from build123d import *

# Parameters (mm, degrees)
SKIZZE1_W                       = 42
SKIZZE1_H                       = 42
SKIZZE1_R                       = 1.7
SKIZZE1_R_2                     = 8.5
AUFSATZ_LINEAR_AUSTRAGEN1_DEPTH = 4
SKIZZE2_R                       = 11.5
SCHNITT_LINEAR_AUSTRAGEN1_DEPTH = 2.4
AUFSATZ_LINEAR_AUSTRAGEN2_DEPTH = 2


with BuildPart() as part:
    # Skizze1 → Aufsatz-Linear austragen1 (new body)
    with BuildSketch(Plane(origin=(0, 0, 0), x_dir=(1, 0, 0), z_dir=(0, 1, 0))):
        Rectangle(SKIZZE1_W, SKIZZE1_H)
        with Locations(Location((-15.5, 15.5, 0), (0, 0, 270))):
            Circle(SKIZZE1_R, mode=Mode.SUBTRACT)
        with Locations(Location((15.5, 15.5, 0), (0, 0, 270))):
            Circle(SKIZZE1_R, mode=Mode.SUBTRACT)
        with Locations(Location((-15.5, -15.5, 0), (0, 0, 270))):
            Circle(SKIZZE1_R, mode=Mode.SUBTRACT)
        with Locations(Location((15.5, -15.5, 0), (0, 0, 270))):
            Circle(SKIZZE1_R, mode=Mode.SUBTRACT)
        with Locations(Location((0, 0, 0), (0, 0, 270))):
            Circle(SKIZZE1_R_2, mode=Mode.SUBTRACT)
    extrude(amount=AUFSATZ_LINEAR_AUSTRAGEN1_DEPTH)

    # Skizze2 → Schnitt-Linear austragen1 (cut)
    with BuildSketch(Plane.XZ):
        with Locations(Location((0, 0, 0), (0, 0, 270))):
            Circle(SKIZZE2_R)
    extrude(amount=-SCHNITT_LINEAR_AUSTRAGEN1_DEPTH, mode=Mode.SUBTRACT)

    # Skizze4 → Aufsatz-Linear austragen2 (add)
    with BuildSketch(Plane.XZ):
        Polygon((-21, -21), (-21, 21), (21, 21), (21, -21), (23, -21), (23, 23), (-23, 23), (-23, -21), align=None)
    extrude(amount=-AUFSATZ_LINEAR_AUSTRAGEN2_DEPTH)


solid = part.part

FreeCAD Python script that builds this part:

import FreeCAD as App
import Part
import Sketcher

doc = App.newDocument("Part")
params = doc.addObject("Spreadsheet::Sheet", "Params")
for row, (alias, value) in enumerate([
    ("sketch1_diameter", "17 mm"),
    ("sketch1_diameter2", "3.4 mm"),
    ("sketch1_width", "42 mm"),
    ("pad1_length", "4 mm"),
    ("sketch2_diameter", "23 mm"),
    ("pocket1_length", "2.4 mm"),
    ("sketch3_width", "42 mm"),
    ("sketch3_width2", "2 mm"),
    ("sketch3_height", "44 mm"),
    ("pad2_length", "2 mm"),
], start=1):
    params.set(f"A{row}", alias)
    params.set(f"B{row}", "=" + value)
    params.setAlias(f"B{row}", alias)

body = doc.addObject("PartDesign::Body", "Body")

# Sketch on XZ plane
sketch1 = body.newObject("Sketcher::SketchObject", "Sketch")
sketch1.AttachmentSupport = (doc.getObject("XZ_Plane"), [""])
sketch1.MapMode = "FlatFace"
sketch1.addGeometry([
    Part.LineSegment(App.Vector(-21, -21, 0), App.Vector(-21, 21, 0)),  # 0
    Part.LineSegment(App.Vector(-21, 21, 0), App.Vector(21, 21, 0)),  # 1
    Part.LineSegment(App.Vector(21, 21, 0), App.Vector(21, -21, 0)),  # 2
    Part.LineSegment(App.Vector(21, -21, 0), App.Vector(-21, -21, 0)),  # 3
    Part.Circle(App.Vector(-15.5, 15.5, 0), App.Vector(0, 0, 1), 1.7),  # 4
    Part.Circle(App.Vector(15.5, 15.5, 0), App.Vector(0, 0, 1), 1.7),  # 5
    Part.Circle(App.Vector(-15.5, -15.5, 0), App.Vector(0, 0, 1), 1.7),  # 6
    Part.Circle(App.Vector(0, 0, 0), App.Vector(0, 0, 1), 8.5),  # 7
    Part.Circle(App.Vector(15.5, -15.5, 0), App.Vector(0, 0, 1), 1.7),  # 8
], False)
sketch1.addConstraint([
    Sketcher.Constraint("Coincident", 0, 2, 1, 1),
    Sketcher.Constraint("Coincident", 1, 2, 2, 1),
    Sketcher.Constraint("Coincident", 2, 2, 3, 1),
    Sketcher.Constraint("Coincident", 3, 2, 0, 1),
    Sketcher.Constraint("Vertical", 0),
    Sketcher.Constraint("Horizontal", 1),
    Sketcher.Constraint("Vertical", 2),
    Sketcher.Constraint("Horizontal", 3),
    Sketcher.Constraint("Coincident", 7, 3, -1, 1),
    Sketcher.Constraint("Equal", 4, 5),
    Sketcher.Constraint("Equal", 5, 6),
    Sketcher.Constraint("Equal", 6, 8),
    Sketcher.Constraint("Symmetric", 5, 3, 6, 3, -1, 1),
    Sketcher.Constraint("Symmetric", 4, 3, 8, 3, -1, 1),
    Sketcher.Constraint("Symmetric", 0, 2, 2, 2, -1, 1),
    Sketcher.Constraint("Symmetric", 4, 3, 5, 3, -2),
    Sketcher.Constraint("Equal", 3, 0),
    Sketcher.Constraint("Diameter", 7, 17.0),
    Sketcher.Constraint("Diameter", 4, 3.4),
    Sketcher.Constraint("DistanceX", 1, 1, 1, 2, 42.0),
    Sketcher.Constraint("DistanceX", 4, 3, 5, 3, 31.0),
    Sketcher.Constraint("DistanceY", 6, 3, 4, 3, 31.0),
])
sketch1.setExpression("Constraints[17]", "Params.sketch1_diameter")
sketch1.setExpression("Constraints[18]", "Params.sketch1_diameter2")
sketch1.setExpression("Constraints[19]", "Params.sketch1_width")
pad1 = body.newObject("PartDesign::Pad", "Pad")
pad1.Profile = sketch1
pad1.setExpression("Length", "Params.pad1_length")
pad1.Reversed = True

# Sketch on XZ plane
sketch2 = body.newObject("Sketcher::SketchObject", "Sketch001")
sketch2.AttachmentSupport = (doc.getObject("XZ_Plane"), [""])
sketch2.MapMode = "FlatFace"
sketch2.addGeometry(Part.Circle(App.Vector(0, 0, 0), App.Vector(0, 0, 1), 11.5), False)
sketch2.addConstraint([
    Sketcher.Constraint("Coincident", 0, 3, -1, 1),
    Sketcher.Constraint("Diameter", 0, 23.0),
])
sketch2.setExpression("Constraints[1]", "Params.sketch2_diameter")
pocket1 = body.newObject("PartDesign::Pocket", "Pocket")
pocket1.Profile = sketch2
pocket1.setExpression("Length", "Params.pocket1_length")

# Sketch on XZ plane
sketch3 = body.newObject("Sketcher::SketchObject", "Sketch002")
sketch3.AttachmentSupport = (doc.getObject("XZ_Plane"), [""])
sketch3.MapMode = "FlatFace"
sketch3.addGeometry([
    Part.LineSegment(App.Vector(-21, -21, 0), App.Vector(-21, 21, 0)),  # 0
    Part.LineSegment(App.Vector(-21, 21, 0), App.Vector(21, 21, 0)),  # 1
    Part.LineSegment(App.Vector(21, 21, 0), App.Vector(21, -21, 0)),  # 2
    Part.LineSegment(App.Vector(21, -21, 0), App.Vector(23, -21, 0)),  # 3
    Part.LineSegment(App.Vector(23, -21, 0), App.Vector(23, 23, 0)),  # 4
    Part.LineSegment(App.Vector(23, 23, 0), App.Vector(-23, 23, 0)),  # 5
    Part.LineSegment(App.Vector(-23, 23, 0), App.Vector(-23, -21, 0)),  # 6
    Part.LineSegment(App.Vector(-23, -21, 0), App.Vector(-21, -21, 0)),  # 7
], False)
sketch3.addConstraint([
    Sketcher.Constraint("Coincident", 0, 2, 1, 1),
    Sketcher.Constraint("Coincident", 1, 2, 2, 1),
    Sketcher.Constraint("Coincident", 2, 2, 3, 1),
    Sketcher.Constraint("Coincident", 3, 2, 4, 1),
    Sketcher.Constraint("Coincident", 4, 2, 5, 1),
    Sketcher.Constraint("Coincident", 5, 2, 6, 1),
    Sketcher.Constraint("Coincident", 6, 2, 7, 1),
    Sketcher.Constraint("Coincident", 7, 2, 0, 1),
    Sketcher.Constraint("Vertical", 0),
    Sketcher.Constraint("Horizontal", 1),
    Sketcher.Constraint("Vertical", 2),
    Sketcher.Constraint("Horizontal", 3),
    Sketcher.Constraint("Vertical", 4),
    Sketcher.Constraint("Horizontal", 5),
    Sketcher.Constraint("Vertical", 6),
    Sketcher.Constraint("Horizontal", 7),
    Sketcher.Constraint("Symmetric", 0, 2, 2, 2, -1, 1),
    Sketcher.Constraint("Symmetric", 3, 2, 6, 2, -2),
    Sketcher.Constraint("Equal", 1, 0),
    Sketcher.Constraint("DistanceX", 1, 1, 1, 2, 42.0),
    Sketcher.Constraint("DistanceX", 3, 1, 3, 2, 2.0),
    Sketcher.Constraint("DistanceY", 4, 1, 4, 2, 44.0),
])
sketch3.setExpression("Constraints[19]", "Params.sketch3_width")
sketch3.setExpression("Constraints[20]", "Params.sketch3_width2")
sketch3.setExpression("Constraints[21]", "Params.sketch3_height")
pad2 = body.newObject("PartDesign::Pad", "Pad001")
pad2.Profile = sketch3
pad2.setExpression("Length", "Params.pad2_length")
pad2.Reversed = True

doc.recompute()
